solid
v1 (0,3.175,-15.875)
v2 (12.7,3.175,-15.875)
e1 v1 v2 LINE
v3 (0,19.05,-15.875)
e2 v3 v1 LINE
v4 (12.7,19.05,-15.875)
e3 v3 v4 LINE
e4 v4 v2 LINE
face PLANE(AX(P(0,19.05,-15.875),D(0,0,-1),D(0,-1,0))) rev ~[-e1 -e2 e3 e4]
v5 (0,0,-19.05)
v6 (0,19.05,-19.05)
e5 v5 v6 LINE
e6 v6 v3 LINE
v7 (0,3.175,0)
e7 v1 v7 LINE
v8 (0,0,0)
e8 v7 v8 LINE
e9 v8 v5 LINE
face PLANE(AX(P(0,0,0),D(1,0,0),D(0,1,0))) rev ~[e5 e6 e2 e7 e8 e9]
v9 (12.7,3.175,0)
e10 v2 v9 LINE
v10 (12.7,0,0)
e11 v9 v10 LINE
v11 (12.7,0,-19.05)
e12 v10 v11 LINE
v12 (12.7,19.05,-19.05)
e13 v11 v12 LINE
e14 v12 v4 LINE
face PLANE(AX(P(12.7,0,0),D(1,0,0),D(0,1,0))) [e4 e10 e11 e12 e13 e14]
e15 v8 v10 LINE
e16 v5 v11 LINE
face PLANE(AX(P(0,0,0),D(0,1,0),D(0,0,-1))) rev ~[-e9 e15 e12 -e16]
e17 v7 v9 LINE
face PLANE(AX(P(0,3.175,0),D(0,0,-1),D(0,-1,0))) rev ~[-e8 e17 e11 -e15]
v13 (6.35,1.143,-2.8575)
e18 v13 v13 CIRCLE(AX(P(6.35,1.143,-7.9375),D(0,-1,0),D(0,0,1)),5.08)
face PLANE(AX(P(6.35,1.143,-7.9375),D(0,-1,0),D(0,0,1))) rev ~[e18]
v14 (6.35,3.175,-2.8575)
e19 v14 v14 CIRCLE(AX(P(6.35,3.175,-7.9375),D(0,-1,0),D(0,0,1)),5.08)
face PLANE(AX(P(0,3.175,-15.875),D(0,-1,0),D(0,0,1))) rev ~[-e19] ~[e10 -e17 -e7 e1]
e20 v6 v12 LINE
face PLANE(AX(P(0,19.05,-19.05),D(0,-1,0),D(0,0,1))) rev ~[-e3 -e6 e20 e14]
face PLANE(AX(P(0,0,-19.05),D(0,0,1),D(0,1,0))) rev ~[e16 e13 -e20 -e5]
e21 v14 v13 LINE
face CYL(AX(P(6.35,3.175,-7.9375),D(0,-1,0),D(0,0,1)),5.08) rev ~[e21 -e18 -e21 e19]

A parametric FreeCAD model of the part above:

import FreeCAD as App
import Part
import Sketcher
from FreeCAD import Vector
Q = App.Units.Quantity

doc = App.newDocument("Part")
body = doc.addObject("PartDesign::Body", "Body")

sketch1 = body.newObject("Sketcher::SketchObject", "Sketch")
sketch1.AttachmentSupport = (doc.getObject("YZ_Plane"), [""])
sketch1.MapMode = "FlatFace"
sketch1.addGeometry(Part.LineSegment(Vector(3.2, 0, 0), Vector(0, 0, 0)), False)
sketch1.addGeometry(Part.LineSegment(Vector(0, 0, 0), Vector(0, -19.1, 0)), False)
sketch1.addGeometry(Part.LineSegment(Vector(0, -19.1, 0), Vector(19.1, -19.1, 0)), False)
sketch1.addGeometry(Part.LineSegment(Vector(19.1, -19.1, 0), Vector(19.1, -15.9, 0)), False)
sketch1.addGeometry(Part.LineSegment(Vector(19.1, -15.9, 0), Vector(3.2, -15.9, 0)), False)
sketch1.addGeometry(Part.LineSegment(Vector(3.2, -15.9, 0), Vector(3.2, 0, 0)), False)
sketch1.addConstraint(Sketcher.Constraint("Coincident", 0, 2, 1, 1))
sketch1.addConstraint(Sketcher.Constraint("Coincident", 1, 2, 2, 1))
sketch1.addConstraint(Sketcher.Constraint("Coincident", 2, 2, 3, 1))
sketch1.addConstraint(Sketcher.Constraint("Coincident", 3, 2, 4, 1))
sketch1.addConstraint(Sketcher.Constraint("Coincident", 4, 2, 5, 1))
sketch1.addConstraint(Sketcher.Constraint("Coincident", 5, 2, 0, 1))
sketch1.addConstraint(Sketcher.Constraint("Horizontal", 0))
sketch1.addConstraint(Sketcher.Constraint("Vertical", 1))
sketch1.addConstraint(Sketcher.Constraint("Horizontal", 2))
sketch1.addConstraint(Sketcher.Constraint("Vertical", 3))
sketch1.addConstraint(Sketcher.Constraint("Horizontal", 4))
sketch1.addConstraint(Sketcher.Constraint("Vertical", 5))
sketch1.addConstraint(Sketcher.Constraint("Coincident", 0, 2, -1, 1))
sketch1.addConstraint(Sketcher.Constraint("Equal", 2, 1))
sketch1.addConstraint(Sketcher.Constraint("Equal", 0, 3))
sketch1.addConstraint(Sketcher.Constraint("DistanceX", 2, 1, 2, 2, Q("0.75 in")))
sketch1.addConstraint(Sketcher.Constraint("DistanceX", 0, 2, 0, 1, Q("0.125 in")))
pad1 = body.newObject("PartDesign::Pad", "Pad")
pad1.Profile = sketch1
pad1.Length = Q("0.5 in")

sketch2 = body.newObject("Sketcher::SketchObject", "Sketch001")
sketch2.AttachmentSupport = (doc.getObject("XZ_Plane"), [""])
sketch2.MapMode = "FlatFace"
sketch2.AttachmentOffset = App.Placement(Vector(0, 0, -0.125 * 25.4), App.Rotation())
sketch2.addGeometry(Part.Circle(Vector(6, -8, 0), Vector(0, 0, 1), 5), False)
sketch2.addConstraint(Sketcher.Constraint("Diameter", 0, Q("0.4 in")))
sketch2.addConstraint(Sketcher.Constraint("DistanceX", -1, 1, 0, 3, Q("0.25 in")))
sketch2.addConstraint(Sketcher.Constraint("DistanceY", 0, 3, -1, 1, Q("0.3125 in")))
doc.recompute()
hole = body.newObject("PartDesign::Hole", "Hole")
hole.Profile = sketch2
hole.ThreadType = "None"
hole.Diameter = Q("0.4 in")
hole.DepthType = "Dimension"
hole.Depth = Q("0.08 in")
hole.DrillPoint = "Flat"
hole.Reversed = True

doc.recompute()
